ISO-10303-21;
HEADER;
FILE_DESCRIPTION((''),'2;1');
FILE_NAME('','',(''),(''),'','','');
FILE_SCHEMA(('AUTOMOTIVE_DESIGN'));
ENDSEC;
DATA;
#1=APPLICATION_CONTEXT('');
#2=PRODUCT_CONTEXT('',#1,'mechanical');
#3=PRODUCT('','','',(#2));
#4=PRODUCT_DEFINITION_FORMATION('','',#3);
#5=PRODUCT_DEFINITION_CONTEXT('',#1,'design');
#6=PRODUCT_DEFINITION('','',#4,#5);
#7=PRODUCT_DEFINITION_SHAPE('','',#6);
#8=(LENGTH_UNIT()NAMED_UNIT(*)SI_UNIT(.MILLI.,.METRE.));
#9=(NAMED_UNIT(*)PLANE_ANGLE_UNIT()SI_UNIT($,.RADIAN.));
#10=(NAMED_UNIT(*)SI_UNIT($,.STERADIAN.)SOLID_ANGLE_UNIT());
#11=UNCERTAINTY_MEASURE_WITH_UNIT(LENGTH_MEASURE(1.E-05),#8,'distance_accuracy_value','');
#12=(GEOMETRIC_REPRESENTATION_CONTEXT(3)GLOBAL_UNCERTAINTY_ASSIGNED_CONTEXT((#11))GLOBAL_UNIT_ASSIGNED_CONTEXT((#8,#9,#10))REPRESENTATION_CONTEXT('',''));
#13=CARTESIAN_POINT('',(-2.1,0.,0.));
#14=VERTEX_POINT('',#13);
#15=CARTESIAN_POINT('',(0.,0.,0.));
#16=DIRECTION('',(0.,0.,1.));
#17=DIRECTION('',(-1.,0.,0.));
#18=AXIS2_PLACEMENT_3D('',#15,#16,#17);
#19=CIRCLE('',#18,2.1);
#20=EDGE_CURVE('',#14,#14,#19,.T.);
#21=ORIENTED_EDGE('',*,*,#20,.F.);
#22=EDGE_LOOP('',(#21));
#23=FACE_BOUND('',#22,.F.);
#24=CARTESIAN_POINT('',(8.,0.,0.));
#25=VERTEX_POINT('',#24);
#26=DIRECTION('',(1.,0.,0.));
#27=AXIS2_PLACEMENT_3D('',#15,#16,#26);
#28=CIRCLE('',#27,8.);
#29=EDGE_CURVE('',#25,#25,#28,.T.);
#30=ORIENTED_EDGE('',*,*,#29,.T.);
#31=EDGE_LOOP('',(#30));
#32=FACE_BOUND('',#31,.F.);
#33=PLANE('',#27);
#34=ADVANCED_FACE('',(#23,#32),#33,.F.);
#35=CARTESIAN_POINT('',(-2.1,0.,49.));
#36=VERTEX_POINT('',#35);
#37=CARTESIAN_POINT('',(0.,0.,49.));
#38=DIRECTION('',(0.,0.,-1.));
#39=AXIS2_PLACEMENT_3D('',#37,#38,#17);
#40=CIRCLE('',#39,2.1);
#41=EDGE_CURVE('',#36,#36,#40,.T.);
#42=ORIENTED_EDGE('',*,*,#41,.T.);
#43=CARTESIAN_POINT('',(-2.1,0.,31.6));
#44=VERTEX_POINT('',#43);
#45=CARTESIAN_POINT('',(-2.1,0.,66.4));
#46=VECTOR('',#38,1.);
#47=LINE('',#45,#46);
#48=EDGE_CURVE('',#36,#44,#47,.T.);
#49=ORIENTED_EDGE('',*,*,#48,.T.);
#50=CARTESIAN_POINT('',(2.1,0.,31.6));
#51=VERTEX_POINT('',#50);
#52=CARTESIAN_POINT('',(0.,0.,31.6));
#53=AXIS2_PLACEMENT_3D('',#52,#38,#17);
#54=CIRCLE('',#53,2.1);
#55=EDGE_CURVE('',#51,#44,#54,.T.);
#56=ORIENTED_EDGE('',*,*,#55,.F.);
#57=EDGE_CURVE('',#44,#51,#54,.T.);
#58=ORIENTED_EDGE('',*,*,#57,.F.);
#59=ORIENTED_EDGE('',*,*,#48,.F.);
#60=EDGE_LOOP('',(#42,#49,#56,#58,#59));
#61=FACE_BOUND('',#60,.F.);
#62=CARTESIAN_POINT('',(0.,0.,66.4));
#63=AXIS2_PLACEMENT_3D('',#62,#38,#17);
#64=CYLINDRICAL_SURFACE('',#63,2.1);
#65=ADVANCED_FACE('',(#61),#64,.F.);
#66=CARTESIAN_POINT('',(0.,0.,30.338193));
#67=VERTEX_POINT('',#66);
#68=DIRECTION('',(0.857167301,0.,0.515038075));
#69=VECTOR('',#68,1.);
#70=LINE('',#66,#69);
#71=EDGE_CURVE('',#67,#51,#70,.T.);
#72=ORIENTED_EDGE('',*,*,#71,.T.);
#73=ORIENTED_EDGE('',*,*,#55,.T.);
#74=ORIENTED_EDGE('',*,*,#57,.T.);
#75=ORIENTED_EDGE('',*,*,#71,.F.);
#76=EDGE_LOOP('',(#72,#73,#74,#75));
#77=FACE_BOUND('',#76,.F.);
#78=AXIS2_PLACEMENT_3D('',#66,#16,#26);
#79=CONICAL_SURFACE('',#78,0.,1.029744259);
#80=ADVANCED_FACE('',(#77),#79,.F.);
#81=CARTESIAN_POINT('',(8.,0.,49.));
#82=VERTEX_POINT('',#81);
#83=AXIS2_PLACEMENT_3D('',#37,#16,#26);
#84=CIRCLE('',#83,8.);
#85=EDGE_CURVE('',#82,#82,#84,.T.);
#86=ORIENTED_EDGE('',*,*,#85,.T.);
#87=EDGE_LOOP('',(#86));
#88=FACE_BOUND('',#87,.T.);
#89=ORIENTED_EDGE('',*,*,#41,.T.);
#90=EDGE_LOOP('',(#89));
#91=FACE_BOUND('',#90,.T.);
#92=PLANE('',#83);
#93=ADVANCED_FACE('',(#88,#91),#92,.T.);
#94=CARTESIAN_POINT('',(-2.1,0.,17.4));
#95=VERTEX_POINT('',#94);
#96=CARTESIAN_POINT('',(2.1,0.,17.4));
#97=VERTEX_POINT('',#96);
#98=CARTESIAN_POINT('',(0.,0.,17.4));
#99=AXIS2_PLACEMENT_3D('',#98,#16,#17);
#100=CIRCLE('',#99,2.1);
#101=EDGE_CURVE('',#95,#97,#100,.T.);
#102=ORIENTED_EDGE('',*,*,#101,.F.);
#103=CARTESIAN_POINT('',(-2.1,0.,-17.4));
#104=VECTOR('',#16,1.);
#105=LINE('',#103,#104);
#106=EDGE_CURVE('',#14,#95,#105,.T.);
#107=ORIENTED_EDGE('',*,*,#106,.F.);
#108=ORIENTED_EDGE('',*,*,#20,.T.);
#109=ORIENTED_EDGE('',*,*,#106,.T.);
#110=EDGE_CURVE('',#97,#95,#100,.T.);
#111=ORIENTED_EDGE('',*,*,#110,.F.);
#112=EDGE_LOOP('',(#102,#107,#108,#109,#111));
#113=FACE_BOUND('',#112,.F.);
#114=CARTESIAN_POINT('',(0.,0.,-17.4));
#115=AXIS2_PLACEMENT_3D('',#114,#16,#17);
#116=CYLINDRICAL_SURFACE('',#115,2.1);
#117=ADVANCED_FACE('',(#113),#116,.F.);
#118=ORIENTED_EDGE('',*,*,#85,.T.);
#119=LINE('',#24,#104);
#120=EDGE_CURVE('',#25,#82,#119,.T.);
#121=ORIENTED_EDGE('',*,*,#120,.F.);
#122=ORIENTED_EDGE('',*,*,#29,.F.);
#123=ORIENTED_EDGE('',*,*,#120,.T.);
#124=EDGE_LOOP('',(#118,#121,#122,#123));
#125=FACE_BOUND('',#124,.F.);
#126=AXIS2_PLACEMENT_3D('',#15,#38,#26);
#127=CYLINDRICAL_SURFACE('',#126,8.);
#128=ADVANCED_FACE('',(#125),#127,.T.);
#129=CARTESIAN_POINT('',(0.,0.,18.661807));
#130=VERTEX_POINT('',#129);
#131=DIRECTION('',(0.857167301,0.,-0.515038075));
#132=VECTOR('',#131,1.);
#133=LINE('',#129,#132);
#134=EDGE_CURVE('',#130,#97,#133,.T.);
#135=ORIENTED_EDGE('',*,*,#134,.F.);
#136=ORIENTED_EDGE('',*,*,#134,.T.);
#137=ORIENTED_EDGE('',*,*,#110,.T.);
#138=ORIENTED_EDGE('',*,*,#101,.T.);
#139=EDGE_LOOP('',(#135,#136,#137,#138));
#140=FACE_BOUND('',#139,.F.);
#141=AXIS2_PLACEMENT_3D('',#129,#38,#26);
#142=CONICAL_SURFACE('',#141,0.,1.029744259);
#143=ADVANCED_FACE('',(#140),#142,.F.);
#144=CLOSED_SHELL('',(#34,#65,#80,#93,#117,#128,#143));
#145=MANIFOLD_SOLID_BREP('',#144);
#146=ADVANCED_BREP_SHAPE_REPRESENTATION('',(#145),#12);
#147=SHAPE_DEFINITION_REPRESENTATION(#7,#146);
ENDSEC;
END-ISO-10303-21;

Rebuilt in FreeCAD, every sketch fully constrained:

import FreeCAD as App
import Part
import Sketcher
from FreeCAD import Vector
Q = App.Units.Quantity

doc = App.newDocument("Part")
body = doc.addObject("PartDesign::Body", "Body")

sketch1 = body.newObject("Sketcher::SketchObject", "Sketch")
sketch1.AttachmentSupport = (doc.getObject("XY_Plane"), [""])
sketch1.MapMode = "FlatFace"
sketch1.addGeometry(Part.Circle(Vector(0, 0, 0), Vector(0, 0, 1), 8), False)
sketch1.addConstraint(Sketcher.Constraint("Coincident", 0, 3, -1, 1))
sketch1.addConstraint(Sketcher.Constraint("Diameter", 0, Q("16 mm")))
pad1 = body.newObject("PartDesign::Pad", "Pad")
pad1.Profile = sketch1
pad1.Length = 49

sketch2 = body.newObject("Sketcher::SketchObject", "Sketch001")
sketch2.AttachmentSupport = (doc.getObject("XY_Plane"), [""])
sketch2.MapMode = "FlatFace"
sketch2.AttachmentOffset = App.Placement(Vector(0, 0, 49), App.Rotation())
sketch2.addGeometry(Part.Circle(Vector(0, 0, 0), Vector(0, 0, 1), 2.1), False)
sketch2.addConstraint(Sketcher.Constraint("Coincident", 0, 3, -1, 1))
sketch2.addConstraint(Sketcher.Constraint("Diameter", 0, Q("4.2 mm")))
doc.recompute()
hole = body.newObject("PartDesign::Hole", "Hole")
hole.Profile = sketch2
hole.ThreadType = "None"
hole.Diameter = 4.2
hole.DepthType = "Dimension"
hole.Depth = 17.4
hole.DrillPoint = "Angled"
hole.DrillPointAngle = 118

sketch3 = body.newObject("Sketcher::SketchObject", "Sketch002")
sketch3.AttachmentSupport = (doc.getObject("XY_Plane"), [""])
sketch3.MapMode = "FlatFace"
sketch3.addGeometry(Part.Circle(Vector(0, 0, 0), Vector(0, 0, 1), 2.1), False)
sketch3.addConstraint(Sketcher.Constraint("Coincident", 0, 3, -1, 1))
sketch3.addConstraint(Sketcher.Constraint("Diameter", 0, Q("4.2 mm")))
doc.recompute()
hole2 = body.newObject("PartDesign::Hole", "Hole001")
hole2.Profile = sketch3
hole2.ThreadType = "None"
hole2.Diameter = 4.2
hole2.DepthType = "Dimension"
hole2.Depth = 17.4
hole2.DrillPoint = "Angled"
hole2.DrillPointAngle = 118
hole2.Reversed = True

doc.recompute()
